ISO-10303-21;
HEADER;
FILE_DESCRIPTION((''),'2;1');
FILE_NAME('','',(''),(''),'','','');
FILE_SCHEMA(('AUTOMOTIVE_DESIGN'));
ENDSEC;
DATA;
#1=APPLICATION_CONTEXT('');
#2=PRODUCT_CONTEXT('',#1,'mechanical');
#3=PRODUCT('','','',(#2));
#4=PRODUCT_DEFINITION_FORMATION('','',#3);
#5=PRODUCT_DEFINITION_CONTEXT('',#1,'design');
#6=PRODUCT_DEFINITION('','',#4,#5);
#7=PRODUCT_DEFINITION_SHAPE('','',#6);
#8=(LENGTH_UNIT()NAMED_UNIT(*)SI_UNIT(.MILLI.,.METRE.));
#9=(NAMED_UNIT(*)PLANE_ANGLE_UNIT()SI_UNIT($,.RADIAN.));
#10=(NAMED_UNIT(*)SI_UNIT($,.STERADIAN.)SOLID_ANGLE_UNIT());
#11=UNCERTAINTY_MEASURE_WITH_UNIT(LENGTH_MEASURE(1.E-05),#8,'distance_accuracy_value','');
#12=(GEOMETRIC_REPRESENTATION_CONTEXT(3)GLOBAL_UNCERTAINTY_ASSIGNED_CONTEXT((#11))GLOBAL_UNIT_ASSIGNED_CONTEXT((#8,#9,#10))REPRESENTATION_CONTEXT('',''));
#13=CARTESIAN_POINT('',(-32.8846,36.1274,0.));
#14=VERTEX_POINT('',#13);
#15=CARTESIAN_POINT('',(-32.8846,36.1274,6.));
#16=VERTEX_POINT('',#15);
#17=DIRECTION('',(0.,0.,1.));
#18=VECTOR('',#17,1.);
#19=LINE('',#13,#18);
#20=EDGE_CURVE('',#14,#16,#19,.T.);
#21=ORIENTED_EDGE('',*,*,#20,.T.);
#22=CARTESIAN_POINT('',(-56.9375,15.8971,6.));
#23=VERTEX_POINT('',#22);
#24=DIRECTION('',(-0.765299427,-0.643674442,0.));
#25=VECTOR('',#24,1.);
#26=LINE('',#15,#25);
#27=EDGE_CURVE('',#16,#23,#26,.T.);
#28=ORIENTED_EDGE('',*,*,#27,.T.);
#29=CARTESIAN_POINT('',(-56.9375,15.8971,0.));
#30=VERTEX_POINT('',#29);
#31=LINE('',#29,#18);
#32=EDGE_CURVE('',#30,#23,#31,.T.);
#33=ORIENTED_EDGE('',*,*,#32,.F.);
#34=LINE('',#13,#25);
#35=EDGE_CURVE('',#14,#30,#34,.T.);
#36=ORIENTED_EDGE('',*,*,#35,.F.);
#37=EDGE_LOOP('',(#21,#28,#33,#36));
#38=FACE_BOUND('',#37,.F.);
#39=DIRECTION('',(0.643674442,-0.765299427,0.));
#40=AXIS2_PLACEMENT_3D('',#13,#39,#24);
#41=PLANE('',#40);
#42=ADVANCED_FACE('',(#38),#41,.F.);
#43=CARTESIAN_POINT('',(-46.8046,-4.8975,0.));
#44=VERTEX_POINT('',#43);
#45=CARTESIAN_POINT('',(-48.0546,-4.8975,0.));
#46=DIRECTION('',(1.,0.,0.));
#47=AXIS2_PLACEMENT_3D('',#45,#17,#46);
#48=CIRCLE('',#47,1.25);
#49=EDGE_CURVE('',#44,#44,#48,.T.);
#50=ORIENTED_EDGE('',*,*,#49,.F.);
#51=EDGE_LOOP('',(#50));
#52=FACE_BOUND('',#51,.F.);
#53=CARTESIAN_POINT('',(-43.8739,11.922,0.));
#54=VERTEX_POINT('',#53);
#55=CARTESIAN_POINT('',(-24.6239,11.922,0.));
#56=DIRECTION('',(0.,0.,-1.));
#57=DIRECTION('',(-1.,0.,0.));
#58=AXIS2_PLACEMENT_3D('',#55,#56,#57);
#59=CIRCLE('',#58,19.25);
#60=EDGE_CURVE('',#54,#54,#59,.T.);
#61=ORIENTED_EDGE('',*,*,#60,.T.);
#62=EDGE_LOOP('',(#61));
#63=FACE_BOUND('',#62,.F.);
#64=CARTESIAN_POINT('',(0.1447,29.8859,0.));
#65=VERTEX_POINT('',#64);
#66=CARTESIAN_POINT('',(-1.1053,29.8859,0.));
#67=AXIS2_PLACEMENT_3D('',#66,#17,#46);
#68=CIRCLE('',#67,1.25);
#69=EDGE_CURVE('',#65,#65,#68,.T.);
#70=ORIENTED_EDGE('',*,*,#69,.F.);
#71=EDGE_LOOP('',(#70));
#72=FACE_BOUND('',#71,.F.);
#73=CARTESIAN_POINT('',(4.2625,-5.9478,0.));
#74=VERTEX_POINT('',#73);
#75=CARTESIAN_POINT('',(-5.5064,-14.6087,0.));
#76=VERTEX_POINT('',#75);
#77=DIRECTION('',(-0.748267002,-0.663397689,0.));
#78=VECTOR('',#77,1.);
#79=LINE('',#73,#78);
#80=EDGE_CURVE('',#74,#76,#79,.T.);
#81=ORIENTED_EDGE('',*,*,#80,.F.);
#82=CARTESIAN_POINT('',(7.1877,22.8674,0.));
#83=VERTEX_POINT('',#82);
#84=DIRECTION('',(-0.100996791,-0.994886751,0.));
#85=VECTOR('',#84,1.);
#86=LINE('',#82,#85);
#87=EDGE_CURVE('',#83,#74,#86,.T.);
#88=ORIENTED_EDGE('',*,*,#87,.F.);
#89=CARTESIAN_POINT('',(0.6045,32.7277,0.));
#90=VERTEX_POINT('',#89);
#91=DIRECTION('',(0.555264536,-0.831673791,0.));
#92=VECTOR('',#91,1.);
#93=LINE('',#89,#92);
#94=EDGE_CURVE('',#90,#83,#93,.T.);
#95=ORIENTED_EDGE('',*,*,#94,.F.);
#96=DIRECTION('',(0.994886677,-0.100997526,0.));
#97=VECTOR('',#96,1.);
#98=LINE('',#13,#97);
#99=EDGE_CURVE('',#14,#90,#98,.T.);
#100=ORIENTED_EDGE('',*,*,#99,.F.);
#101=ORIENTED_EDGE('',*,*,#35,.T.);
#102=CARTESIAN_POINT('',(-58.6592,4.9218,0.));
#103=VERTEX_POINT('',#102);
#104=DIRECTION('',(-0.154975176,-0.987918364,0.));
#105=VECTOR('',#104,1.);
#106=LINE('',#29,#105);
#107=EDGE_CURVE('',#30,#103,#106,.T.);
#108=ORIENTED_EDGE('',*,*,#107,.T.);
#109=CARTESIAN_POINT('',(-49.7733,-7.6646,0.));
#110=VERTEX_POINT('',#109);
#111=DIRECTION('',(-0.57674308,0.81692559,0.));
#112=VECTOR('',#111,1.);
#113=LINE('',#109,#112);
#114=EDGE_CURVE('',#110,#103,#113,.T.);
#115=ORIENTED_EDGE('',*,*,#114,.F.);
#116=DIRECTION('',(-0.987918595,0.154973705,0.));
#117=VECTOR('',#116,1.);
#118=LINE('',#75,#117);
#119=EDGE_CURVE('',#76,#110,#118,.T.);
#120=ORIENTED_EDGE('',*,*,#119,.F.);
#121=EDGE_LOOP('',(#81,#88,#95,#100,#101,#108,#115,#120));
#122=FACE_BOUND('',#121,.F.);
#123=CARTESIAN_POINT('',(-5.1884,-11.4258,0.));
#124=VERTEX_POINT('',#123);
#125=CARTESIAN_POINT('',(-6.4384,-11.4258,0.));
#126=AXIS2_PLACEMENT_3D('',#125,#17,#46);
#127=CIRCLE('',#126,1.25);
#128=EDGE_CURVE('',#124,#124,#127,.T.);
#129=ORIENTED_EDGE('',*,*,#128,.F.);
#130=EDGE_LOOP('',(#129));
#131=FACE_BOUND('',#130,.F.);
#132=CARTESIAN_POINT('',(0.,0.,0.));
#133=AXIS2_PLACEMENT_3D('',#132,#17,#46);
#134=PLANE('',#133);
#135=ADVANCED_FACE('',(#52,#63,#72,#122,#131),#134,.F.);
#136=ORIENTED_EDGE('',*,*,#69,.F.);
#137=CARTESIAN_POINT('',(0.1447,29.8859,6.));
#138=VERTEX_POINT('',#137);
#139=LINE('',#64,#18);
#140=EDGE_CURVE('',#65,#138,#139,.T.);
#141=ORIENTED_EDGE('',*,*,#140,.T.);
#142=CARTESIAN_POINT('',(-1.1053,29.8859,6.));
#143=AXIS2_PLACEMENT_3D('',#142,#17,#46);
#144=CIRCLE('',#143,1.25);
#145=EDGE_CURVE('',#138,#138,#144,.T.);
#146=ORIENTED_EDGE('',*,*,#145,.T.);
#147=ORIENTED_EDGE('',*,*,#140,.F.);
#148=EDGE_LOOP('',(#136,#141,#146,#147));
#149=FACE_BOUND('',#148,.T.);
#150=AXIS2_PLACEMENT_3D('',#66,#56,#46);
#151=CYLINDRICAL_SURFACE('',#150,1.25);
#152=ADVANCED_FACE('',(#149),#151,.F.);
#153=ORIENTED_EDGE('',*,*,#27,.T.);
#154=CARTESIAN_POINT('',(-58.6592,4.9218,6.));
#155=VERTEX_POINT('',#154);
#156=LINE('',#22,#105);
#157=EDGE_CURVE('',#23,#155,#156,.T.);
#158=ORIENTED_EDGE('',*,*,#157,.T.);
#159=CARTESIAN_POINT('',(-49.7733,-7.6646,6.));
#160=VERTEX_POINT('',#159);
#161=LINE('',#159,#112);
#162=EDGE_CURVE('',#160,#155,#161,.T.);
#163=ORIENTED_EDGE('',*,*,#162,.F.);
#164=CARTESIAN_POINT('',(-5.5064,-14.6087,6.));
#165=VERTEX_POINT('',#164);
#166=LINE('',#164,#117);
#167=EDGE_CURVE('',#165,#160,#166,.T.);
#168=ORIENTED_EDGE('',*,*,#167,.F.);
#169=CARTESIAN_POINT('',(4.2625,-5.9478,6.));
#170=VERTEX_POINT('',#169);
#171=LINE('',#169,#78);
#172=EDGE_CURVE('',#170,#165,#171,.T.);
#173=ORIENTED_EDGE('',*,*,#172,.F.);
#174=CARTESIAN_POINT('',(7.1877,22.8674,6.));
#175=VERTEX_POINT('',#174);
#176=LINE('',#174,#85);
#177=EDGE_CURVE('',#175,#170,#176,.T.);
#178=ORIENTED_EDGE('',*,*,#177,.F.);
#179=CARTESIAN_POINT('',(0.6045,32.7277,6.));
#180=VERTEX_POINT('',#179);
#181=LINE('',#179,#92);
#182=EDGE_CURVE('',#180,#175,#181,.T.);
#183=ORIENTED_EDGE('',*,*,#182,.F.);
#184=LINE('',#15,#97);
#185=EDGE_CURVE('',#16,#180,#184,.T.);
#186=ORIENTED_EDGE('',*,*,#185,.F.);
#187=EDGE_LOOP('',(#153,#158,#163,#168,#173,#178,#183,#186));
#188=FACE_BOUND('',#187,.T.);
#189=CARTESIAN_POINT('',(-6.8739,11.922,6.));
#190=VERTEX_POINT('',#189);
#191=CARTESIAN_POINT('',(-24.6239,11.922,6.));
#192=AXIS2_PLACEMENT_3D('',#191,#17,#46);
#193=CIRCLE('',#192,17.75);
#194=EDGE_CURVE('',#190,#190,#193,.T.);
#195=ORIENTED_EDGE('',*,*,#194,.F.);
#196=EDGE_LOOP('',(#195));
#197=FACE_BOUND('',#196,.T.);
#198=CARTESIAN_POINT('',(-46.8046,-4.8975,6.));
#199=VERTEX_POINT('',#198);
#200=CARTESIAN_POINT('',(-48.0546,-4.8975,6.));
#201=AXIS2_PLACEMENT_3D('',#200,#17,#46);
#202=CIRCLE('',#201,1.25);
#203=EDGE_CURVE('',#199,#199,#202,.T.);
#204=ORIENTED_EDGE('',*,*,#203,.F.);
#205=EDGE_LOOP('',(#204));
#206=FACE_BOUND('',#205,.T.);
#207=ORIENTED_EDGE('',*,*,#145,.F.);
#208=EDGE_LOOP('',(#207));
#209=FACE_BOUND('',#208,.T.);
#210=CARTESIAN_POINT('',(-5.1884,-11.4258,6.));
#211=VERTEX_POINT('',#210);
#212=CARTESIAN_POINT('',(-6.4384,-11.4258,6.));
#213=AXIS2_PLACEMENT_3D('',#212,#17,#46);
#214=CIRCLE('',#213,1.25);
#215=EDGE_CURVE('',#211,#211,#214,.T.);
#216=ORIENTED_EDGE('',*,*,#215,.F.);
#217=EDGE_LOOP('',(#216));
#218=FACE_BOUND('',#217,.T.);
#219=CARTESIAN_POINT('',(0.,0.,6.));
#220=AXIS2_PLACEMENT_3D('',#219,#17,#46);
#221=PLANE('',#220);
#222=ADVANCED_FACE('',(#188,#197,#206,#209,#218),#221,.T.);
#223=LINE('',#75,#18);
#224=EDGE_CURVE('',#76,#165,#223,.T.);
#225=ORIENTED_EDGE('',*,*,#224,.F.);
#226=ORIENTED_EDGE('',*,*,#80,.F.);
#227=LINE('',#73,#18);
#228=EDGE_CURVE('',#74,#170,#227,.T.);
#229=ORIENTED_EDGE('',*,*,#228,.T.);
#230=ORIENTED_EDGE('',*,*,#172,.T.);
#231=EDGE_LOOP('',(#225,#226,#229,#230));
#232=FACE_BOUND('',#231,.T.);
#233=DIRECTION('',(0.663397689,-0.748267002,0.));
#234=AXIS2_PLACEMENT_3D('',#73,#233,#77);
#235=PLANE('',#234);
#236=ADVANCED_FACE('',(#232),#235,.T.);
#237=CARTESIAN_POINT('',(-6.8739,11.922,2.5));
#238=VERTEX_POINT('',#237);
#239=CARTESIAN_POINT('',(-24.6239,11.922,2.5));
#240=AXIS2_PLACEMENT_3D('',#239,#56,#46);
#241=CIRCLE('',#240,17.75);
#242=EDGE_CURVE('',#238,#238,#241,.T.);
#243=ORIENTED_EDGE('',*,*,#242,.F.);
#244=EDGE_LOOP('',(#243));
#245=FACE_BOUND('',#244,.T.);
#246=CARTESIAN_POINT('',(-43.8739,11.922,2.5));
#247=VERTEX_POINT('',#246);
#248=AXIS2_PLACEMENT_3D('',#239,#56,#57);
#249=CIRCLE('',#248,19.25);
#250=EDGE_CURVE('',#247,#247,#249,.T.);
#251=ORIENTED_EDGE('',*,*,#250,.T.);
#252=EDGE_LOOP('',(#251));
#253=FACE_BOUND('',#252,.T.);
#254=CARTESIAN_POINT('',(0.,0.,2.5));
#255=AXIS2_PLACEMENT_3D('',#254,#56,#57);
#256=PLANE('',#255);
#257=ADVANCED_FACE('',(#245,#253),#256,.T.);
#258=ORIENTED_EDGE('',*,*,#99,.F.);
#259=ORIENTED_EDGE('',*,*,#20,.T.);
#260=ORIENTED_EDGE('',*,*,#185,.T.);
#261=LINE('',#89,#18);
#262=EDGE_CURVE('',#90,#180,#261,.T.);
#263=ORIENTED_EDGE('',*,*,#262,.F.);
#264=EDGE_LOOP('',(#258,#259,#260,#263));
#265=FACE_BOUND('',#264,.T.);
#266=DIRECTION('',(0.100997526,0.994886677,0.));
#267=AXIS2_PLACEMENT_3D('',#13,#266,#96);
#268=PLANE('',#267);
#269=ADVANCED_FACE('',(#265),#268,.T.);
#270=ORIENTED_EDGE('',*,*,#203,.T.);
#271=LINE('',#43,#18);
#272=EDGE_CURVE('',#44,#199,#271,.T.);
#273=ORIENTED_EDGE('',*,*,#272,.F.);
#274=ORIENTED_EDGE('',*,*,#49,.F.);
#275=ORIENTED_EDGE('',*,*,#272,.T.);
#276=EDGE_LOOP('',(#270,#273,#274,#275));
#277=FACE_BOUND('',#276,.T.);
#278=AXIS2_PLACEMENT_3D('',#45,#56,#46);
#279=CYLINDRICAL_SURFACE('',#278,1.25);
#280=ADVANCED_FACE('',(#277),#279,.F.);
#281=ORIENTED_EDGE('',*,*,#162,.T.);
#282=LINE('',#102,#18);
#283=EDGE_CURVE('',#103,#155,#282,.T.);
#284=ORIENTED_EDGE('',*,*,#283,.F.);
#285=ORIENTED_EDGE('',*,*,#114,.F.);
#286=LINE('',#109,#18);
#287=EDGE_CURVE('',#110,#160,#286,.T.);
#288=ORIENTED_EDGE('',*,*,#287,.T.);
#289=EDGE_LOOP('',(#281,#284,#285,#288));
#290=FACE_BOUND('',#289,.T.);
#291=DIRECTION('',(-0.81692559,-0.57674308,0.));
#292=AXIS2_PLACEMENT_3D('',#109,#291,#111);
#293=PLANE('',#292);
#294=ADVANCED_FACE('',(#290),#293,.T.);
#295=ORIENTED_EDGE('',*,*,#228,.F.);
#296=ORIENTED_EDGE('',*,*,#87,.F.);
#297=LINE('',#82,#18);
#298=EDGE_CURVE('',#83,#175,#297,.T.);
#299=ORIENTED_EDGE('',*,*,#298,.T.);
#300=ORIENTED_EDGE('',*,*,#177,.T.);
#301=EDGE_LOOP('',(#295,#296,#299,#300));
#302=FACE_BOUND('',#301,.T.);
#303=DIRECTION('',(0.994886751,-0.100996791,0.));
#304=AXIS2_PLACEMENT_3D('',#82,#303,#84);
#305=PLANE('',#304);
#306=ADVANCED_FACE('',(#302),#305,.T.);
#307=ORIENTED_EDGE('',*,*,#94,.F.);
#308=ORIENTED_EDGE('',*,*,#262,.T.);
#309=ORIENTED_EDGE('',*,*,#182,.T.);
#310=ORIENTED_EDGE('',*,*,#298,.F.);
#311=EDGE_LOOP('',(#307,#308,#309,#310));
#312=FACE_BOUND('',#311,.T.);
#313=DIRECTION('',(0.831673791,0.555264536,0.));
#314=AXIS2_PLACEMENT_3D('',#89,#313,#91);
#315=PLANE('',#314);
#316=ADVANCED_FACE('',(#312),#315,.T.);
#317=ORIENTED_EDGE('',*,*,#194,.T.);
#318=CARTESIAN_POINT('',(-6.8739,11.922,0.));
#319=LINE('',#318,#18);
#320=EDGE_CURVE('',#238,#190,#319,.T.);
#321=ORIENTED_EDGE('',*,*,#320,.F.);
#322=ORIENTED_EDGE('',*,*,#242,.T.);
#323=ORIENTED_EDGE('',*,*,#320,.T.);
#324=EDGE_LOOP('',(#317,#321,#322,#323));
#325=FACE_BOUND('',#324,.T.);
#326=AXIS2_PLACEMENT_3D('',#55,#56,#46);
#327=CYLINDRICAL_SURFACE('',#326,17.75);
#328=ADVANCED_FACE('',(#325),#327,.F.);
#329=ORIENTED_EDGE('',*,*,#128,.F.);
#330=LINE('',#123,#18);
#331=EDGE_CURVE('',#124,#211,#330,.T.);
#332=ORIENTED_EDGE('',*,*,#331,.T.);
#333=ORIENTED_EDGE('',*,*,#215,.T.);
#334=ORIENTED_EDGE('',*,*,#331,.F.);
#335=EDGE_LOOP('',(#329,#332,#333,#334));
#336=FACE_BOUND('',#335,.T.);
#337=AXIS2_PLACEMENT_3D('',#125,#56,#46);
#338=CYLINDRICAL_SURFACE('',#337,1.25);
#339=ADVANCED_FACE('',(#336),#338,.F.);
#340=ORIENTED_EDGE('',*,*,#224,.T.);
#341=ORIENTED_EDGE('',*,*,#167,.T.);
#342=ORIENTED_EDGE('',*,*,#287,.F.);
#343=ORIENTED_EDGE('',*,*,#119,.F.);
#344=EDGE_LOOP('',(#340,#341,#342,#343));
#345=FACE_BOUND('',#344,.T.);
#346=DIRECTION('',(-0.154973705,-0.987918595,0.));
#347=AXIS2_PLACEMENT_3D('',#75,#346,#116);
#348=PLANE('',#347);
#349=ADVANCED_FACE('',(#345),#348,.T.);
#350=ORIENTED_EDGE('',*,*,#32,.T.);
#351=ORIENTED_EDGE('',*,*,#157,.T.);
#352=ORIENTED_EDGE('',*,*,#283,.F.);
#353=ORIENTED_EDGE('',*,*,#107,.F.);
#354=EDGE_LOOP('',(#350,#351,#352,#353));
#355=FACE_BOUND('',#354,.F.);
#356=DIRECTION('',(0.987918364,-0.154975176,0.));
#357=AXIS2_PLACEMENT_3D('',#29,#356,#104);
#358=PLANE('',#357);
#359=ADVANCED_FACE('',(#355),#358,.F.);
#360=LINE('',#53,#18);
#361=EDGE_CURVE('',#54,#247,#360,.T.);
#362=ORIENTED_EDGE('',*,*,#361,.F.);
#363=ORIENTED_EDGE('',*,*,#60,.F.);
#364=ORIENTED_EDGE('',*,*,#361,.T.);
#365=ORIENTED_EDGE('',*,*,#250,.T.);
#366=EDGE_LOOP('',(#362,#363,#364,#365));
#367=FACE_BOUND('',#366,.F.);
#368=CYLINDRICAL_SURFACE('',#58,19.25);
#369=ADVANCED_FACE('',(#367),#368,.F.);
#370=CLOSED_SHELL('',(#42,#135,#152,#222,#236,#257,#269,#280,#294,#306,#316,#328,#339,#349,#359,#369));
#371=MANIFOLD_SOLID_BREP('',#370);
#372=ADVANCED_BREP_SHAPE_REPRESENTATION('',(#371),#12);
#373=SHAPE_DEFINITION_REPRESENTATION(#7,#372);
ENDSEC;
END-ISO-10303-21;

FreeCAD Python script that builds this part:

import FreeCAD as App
import Part
import Sketcher

V = App.Vector

doc = App.newDocument("Part")
body = doc.addObject("PartDesign::Body", "Body")

# Sketch on XY plane
sketch1 = doc.addObject("Sketcher::SketchObject", "Sketch")
body.addObject(sketch1)
sketch1.AttachmentSupport = (doc.XY_Plane, [""])
sketch1.MapMode = "FlatFace"
sketch1.addGeometry([
    Part.LineSegment(V(0.6045, 32.7277, 0), V(-32.8846, 36.1274, 0)),  # 0
    Part.LineSegment(V(-32.8846, 36.1274, 0), V(-56.9375, 15.8971, 0)),  # 1
    Part.LineSegment(V(-56.9375, 15.8971, 0), V(-58.6592, 4.9218, 0)),  # 2
    Part.LineSegment(V(-58.6592, 4.9218, 0), V(-49.7733, -7.6646, 0)),  # 3
    Part.LineSegment(V(-49.7733, -7.6646, 0), V(-5.5064, -14.6087, 0)),  # 4
    Part.LineSegment(V(-5.5064, -14.6087, 0), V(4.2625, -5.9478, 0)),  # 5
    Part.LineSegment(V(4.2625, -5.9478, 0), V(7.1877, 22.8674, 0)),  # 6
    Part.LineSegment(V(7.1877, 22.8674, 0), V(0.6045, 32.7277, 0)),  # 7
    Part.Circle(V(-48.0546, -4.8975, 0), V(0, 0, 1), 1.25),  # 8
    Part.Circle(V(-6.4384, -11.4258, 0), V(0, 0, 1), 1.25),  # 9
    Part.Circle(V(-24.6239, 11.922, 0), V(0, 0, 1), 17.75),  # 10
    Part.Circle(V(-1.1053, 29.8859, 0), V(0, 0, 1), 1.25),  # 11
], False)
sketch1.addConstraint([
    Sketcher.Constraint("Coincident", 0, 2, 1, 1),
    Sketcher.Constraint("Coincident", 1, 2, 2, 1),
    Sketcher.Constraint("Coincident", 2, 2, 3, 1),
    Sketcher.Constraint("Coincident", 3, 2, 4, 1),
    Sketcher.Constraint("Coincident", 4, 2, 5, 1),
    Sketcher.Constraint("Coincident", 5, 2, 6, 1),
    Sketcher.Constraint("Coincident", 6, 2, 7, 1),
    Sketcher.Constraint("Coincident", 7, 2, 0, 1),
    Sketcher.Constraint("Diameter", 8, 2.5),
    Sketcher.Constraint("Diameter", 9, 2.5),
    Sketcher.Constraint("Diameter", 10, 35.5),
    Sketcher.Constraint("Diameter", 11, 2.5),
    Sketcher.Constraint("DistanceX", 8, 3, 0, 2, 15.17),
    Sketcher.Constraint("Distance", 3, 15.407),
    Sketcher.Constraint("Distance", 7, 11.856),
    Sketcher.Constraint("DistanceX", 10, 3, -1, 1, 24.624),
    Sketcher.Constraint("DistanceY", -1, 1, 10, 3, 11.922),
    Sketcher.Constraint("DistanceY", -1, 1, 11, 3, 29.886),
    Sketcher.Constraint("DistanceY", -1, 1, 1, 2, 15.897),
    Sketcher.Constraint("DistanceX", 9, 3, 11, 3, 5.333),
    Sketcher.Constraint("DistanceY", 8, 3, 0, 2, 41.025),
    Sketcher.Constraint("DistanceX", 1, 2, 8, 3, 8.883),
    Sketcher.Constraint("DistanceX", 1, 2, 9, 3, 50.499),
    Sketcher.Constraint("DistanceY", 9, 3, 1, 2, 27.323),
    Sketcher.Constraint("DistanceY", 3, 2, 8, 3, 2.767),
    Sketcher.Constraint("DistanceX", 2, 2, 3, 2, 8.886),
    Sketcher.Constraint("DistanceX", 3, 2, 9, 3, 43.335),
    Sketcher.Constraint("DistanceX", 9, 3, 4, 2, 0.932),
    Sketcher.Constraint("DistanceY", 4, 2, 9, 3, 3.183),
    Sketcher.Constraint("DistanceY", 4, 2, 3, 2, 6.944),
    Sketcher.Constraint("DistanceX", 9, 3, 5, 2, 10.701),
    Sketcher.Constraint("DistanceY", 9, 3, 5, 2, 5.478),
    Sketcher.Constraint("DistanceX", 11, 3, 6, 2, 8.293),
    Sketcher.Constraint("DistanceY", 4, 2, 6, 2, 37.476),
    Sketcher.Constraint("DistanceX", 0, 2, 7, 2, 33.489),
    Sketcher.Constraint("DistanceX", 8, 3, -1, 1, 48.0546),
])
pad1 = doc.addObject("PartDesign::Pad", "Pad")
body.addObject(pad1)
pad1.Profile = sketch1
pad1.Length = 6

# Sketch on XY plane
sketch2 = doc.addObject("Sketcher::SketchObject", "Sketch001")
body.addObject(sketch2)
sketch2.AttachmentSupport = (doc.XY_Plane, [""])
sketch2.MapMode = "FlatFace"
sketch2.addGeometry([
    Part.Circle(V(-24.6239, 11.922, 0), V(0, 0, 1), 19.25),
    Part.Circle(V(-24.6239, 11.922, 0), V(0, 0, 1), 17.75),
], False)
sketch2.addConstraint([
    Sketcher.Constraint("Coincident", 1, 3, 0, 3),
    Sketcher.Constraint("Diameter", 0, 38.5),
    Sketcher.Constraint("Diameter", 1, 35.5),
    Sketcher.Constraint("DistanceX", 0, 3, -1, 1, 24.624),
    Sketcher.Constraint("DistanceY", -1, 1, 0, 3, 11.922),
])
pocket1 = doc.addObject("PartDesign::Pocket", "Pocket")
body.addObject(pocket1)
pocket1.Profile = sketch2
pocket1.Length = 2.5
pocket1.Reversed = True

doc.recompute()
